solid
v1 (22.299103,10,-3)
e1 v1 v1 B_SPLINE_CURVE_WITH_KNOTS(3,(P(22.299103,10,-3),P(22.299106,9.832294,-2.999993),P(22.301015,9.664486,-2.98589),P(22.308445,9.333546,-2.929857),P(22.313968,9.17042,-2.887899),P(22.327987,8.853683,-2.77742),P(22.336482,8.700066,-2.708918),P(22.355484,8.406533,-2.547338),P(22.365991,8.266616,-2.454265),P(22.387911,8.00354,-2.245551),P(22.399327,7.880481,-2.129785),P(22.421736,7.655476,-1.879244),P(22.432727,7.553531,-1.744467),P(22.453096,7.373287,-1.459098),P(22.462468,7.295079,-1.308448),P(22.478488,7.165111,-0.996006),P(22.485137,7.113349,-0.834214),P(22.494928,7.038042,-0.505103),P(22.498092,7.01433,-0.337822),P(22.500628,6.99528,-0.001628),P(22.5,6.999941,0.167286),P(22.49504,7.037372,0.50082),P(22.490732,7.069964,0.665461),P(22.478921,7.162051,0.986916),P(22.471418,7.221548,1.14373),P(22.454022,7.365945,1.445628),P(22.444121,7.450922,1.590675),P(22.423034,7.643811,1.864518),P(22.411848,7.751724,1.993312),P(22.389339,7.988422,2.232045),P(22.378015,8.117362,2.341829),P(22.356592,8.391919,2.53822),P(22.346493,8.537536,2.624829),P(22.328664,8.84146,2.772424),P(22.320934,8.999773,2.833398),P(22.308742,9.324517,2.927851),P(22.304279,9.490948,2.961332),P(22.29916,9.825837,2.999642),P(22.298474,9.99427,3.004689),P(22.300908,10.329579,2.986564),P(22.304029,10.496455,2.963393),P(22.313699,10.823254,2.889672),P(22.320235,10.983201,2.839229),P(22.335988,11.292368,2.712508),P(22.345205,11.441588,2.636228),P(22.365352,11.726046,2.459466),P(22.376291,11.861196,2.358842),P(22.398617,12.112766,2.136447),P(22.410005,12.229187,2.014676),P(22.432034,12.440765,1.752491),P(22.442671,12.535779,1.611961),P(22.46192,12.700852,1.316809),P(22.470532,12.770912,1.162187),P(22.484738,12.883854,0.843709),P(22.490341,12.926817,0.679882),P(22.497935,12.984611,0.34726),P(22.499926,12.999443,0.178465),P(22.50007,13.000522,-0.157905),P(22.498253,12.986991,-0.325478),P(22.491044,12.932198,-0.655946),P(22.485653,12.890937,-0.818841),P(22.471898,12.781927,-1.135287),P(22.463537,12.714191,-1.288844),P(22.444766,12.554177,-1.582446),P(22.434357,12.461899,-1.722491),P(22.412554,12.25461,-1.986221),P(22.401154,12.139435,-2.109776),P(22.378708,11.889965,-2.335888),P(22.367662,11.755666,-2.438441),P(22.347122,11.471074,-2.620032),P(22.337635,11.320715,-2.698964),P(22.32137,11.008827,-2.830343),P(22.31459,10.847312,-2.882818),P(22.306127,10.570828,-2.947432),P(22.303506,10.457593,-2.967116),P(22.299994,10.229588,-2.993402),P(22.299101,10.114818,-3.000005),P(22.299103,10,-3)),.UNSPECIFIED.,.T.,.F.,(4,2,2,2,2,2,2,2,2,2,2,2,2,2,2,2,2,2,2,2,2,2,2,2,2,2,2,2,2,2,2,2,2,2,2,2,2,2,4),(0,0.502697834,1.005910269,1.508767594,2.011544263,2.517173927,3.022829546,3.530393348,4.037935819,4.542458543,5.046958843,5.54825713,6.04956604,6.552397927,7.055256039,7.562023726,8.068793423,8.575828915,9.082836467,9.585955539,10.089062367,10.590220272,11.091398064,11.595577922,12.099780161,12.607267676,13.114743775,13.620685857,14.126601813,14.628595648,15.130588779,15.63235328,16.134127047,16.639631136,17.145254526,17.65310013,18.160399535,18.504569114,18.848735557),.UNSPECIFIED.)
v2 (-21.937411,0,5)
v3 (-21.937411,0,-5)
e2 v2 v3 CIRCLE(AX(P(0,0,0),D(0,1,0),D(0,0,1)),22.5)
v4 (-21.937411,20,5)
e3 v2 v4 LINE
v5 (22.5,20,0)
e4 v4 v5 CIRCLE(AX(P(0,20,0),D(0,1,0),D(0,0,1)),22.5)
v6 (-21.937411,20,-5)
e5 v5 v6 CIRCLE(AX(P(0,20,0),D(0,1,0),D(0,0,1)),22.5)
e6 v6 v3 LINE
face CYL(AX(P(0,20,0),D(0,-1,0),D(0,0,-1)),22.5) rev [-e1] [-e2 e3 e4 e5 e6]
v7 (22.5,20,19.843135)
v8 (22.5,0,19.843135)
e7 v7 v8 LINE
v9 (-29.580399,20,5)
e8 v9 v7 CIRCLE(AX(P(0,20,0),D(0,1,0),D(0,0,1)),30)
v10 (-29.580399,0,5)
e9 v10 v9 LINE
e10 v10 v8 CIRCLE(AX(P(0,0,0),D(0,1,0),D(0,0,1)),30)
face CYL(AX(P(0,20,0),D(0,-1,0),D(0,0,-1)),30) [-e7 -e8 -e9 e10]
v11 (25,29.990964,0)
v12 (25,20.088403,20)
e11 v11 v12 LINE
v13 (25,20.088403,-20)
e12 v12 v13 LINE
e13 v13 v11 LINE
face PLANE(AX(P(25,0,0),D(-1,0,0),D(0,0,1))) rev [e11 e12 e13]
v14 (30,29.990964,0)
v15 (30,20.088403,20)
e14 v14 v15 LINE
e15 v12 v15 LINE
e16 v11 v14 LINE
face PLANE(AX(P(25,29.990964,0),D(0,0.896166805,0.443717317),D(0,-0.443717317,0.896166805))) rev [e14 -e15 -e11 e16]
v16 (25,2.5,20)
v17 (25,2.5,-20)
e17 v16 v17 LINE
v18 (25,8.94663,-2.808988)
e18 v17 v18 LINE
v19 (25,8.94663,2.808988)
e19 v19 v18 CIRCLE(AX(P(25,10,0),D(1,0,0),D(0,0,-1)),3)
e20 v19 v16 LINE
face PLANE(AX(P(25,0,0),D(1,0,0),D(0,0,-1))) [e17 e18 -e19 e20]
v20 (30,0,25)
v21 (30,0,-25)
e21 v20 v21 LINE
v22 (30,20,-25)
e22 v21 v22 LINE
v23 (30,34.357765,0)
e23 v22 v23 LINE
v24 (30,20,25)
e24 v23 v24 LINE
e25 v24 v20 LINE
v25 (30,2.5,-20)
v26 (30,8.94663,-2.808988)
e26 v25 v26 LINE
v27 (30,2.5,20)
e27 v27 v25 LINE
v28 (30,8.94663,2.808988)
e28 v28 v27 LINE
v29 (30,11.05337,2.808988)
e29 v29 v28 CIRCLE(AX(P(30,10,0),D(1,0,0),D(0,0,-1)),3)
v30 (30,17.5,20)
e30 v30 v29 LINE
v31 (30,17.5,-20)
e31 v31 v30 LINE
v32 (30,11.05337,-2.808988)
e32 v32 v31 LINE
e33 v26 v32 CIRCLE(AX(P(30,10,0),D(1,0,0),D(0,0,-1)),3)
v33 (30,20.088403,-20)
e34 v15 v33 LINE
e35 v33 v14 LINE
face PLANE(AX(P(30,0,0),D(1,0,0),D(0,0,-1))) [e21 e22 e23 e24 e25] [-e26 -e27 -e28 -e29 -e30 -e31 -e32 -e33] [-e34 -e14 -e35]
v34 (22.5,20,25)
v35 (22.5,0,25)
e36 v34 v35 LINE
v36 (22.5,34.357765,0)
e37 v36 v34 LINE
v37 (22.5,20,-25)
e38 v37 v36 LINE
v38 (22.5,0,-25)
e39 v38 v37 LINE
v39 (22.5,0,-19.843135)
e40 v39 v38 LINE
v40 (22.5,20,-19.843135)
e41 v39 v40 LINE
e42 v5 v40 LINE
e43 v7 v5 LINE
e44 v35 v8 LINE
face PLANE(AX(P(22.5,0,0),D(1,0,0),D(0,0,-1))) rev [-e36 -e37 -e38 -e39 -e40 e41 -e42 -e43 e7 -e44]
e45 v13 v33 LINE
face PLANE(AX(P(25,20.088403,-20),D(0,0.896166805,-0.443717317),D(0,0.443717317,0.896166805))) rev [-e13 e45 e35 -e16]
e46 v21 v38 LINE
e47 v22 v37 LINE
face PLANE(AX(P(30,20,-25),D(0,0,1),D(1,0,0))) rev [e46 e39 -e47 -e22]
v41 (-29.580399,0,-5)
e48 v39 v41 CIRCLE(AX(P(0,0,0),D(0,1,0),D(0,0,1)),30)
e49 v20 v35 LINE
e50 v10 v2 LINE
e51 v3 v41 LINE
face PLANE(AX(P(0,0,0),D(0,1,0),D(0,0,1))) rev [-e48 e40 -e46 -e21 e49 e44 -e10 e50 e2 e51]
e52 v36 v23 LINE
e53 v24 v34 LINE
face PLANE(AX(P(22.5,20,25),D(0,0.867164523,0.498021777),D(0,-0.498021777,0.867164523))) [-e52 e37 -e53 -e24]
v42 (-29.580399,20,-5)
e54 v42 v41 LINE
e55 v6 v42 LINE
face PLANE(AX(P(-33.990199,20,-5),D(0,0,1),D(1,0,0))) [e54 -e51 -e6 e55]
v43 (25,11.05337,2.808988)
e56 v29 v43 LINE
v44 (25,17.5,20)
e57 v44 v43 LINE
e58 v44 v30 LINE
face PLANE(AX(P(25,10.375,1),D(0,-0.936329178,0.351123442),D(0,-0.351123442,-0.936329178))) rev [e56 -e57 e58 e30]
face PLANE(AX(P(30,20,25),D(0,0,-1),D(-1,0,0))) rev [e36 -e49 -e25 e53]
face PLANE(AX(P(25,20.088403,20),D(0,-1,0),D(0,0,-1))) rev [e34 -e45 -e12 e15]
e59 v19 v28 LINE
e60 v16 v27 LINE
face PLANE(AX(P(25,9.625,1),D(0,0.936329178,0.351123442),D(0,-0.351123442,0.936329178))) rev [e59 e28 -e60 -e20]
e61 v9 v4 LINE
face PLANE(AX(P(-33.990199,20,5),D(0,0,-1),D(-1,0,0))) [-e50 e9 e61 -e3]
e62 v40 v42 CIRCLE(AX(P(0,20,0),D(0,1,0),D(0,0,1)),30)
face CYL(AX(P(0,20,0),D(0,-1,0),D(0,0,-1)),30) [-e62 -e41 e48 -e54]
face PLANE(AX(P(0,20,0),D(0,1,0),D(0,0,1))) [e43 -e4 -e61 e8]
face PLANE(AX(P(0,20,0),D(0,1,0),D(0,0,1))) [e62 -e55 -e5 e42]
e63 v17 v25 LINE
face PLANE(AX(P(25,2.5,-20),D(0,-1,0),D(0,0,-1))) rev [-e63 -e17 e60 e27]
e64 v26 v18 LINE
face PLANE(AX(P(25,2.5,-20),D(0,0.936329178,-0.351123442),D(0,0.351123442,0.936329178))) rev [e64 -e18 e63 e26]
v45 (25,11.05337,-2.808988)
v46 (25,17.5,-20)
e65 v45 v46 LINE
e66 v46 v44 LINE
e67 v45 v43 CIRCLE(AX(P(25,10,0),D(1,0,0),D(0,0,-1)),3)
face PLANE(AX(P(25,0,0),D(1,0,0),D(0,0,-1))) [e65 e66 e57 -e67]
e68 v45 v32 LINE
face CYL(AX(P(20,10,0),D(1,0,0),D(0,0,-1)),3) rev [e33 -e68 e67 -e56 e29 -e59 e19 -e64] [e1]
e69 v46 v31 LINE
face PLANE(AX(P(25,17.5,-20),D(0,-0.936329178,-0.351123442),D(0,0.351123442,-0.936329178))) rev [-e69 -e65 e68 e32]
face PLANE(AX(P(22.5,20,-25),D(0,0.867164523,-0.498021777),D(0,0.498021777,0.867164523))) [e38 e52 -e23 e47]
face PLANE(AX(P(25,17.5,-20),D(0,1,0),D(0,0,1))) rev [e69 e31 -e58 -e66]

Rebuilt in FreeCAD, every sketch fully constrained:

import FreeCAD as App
import Part
import Sketcher


def add_polygon(sketch, points):
    """Adds a closed chain of lines whose ends are joined by coincident constraints."""
    first, n = sketch.GeometryCount, len(points)
    for a, b in zip(points, points[1:] + points[:1]):
        sketch.addGeometry(Part.LineSegment(App.Vector(*a, 0), App.Vector(*b, 0)), False)
    for i in range(n):
        sketch.addConstraint(Sketcher.Constraint("Coincident", first + i, 2, first + (i + 1) % n, 1))

doc = App.newDocument("Part")
params = doc.addObject("Spreadsheet::Sheet", "Params")
for row, (alias, value) in enumerate([
    ("sketch1_diameter", "60 mm"),
    ("sketch1_diameter2", "45 mm"),
    ("pad1_length", "20 mm"),
    ("sketch2_width", "20 mm"),
    ("sketch2_height", "50 mm"),
    ("pad2_length", "7.5 mm"),
    ("sketch3_height", "10 mm"),
    ("pocket1_length", "20 mm"),
    ("sketch4_height", "40 mm"),
    ("sketch4_width", "0.75 mm"),
    ("pocket2_length", "5 mm"),
    ("sketch5_diameter", "6 mm"),
    ("pocket3_length", "10 mm"),
    ("sketch6_height", "50 mm"),
    ("pad3_length", "7.5 mm"),
    ("sketch7_height", "40 mm"),
    ("pocket4_length", "5 mm"),
], start=1):
    params.set(f"A{row}", alias)
    params.set(f"B{row}", "=" + value)
    params.setAlias(f"B{row}", alias)

body = doc.addObject("PartDesign::Body", "Body")

sketch1 = doc.addObject("Sketcher::SketchObject", "Sketch")
body.addObject(sketch1)
sketch1.AttachmentSupport = (doc.XZ_Plane, [""])
sketch1.MapMode = "FlatFace"
sketch1.addGeometry([
    Part.Circle(App.Vector(0, 0, 0), App.Vector(0, 0, 1), 30),
    Part.Circle(App.Vector(0, 0, 0), App.Vector(0, 0, 1), 22),
], False)
sketch1.addConstraint([
    Sketcher.Constraint("Coincident", 0, 3, -1, 1),
    Sketcher.Constraint("Coincident", 1, 3, -1, 1),
    Sketcher.Constraint("Diameter", 0, 60.0),
    Sketcher.Constraint("Diameter", 1, 45.0),
])
sketch1.setExpression("Constraints[2]", "Params.sketch1_diameter")
sketch1.setExpression("Constraints[3]", "Params.sketch1_diameter2")
pad1 = doc.addObject("PartDesign::Pad", "Pad")
body.addObject(pad1)
pad1.Profile = sketch1
pad1.setExpression("Length", "Params.pad1_length")
pad1.Reversed = True

sketch2 = doc.addObject("Sketcher::SketchObject", "Sketch001")
body.addObject(sketch2)
sketch2.AttachmentSupport = (doc.YZ_Plane, [""])
sketch2.MapMode = "FlatFace"
sketch2.AttachmentOffset = App.Placement(App.Vector(0, 0, 22.5), App.Rotation())
add_polygon(sketch2, [(20, 25), (0, 25), (0, -25), (20, -25)])
sketch2.addConstraint([
    Sketcher.Constraint("Horizontal", 0),
    Sketcher.Constraint("Vertical", 1),
    Sketcher.Constraint("Horizontal", 2),
    Sketcher.Constraint("Vertical", 3),
    Sketcher.Constraint("Symmetric", 0, 2, 1, 2, -1, 1),
    Sketcher.Constraint("DistanceX", 0, 2, 0, 1, 20.0),
    Sketcher.Constraint("DistanceY", 1, 2, 1, 1, 50.0),
])
sketch2.setExpression("Constraints[9]", "Params.sketch2_width")
sketch2.setExpression("Constraints[10]", "Params.sketch2_height")
pad2 = doc.addObject("PartDesign::Pad", "Pad001")
body.addObject(pad2)
pad2.Profile = sketch2
pad2.setExpression("Length", "Params.pad2_length")

sketch3 = doc.addObject("Sketcher::SketchObject", "Sketch002")
body.addObject(sketch3)
sketch3.AttachmentSupport = (doc.XZ_Plane, [""])
sketch3.MapMode = "FlatFace"
add_polygon(sketch3, [(-34, -5), (-34, 5), (-20, 5), (-20, -5)])
sketch3.addConstraint([
    Sketcher.Constraint("Vertical", 0),
    Sketcher.Constraint("Horizontal", 1),
    Sketcher.Constraint("Vertical", 2),
    Sketcher.Constraint("Horizontal", 3),
    Sketcher.Constraint("DistanceY", 0, 1, 0, 2, 10.0),
    Sketcher.Constraint("DistanceY", -1, 1, 0, 2, 5.0),
    Sketcher.Constraint("DistanceX", 0, 2, -1, 1, 33.990199),
    Sketcher.Constraint("DistanceX", 1, 1, 1, 2, 14.398607),
])
sketch3.setExpression("Constraints[8]", "Params.sketch3_height")
pocket1 = doc.addObject("PartDesign::Pocket", "Pocket")
body.addObject(pocket1)
pocket1.Profile = sketch3
pocket1.setExpression("Length", "Params.pocket1_length")

sketch4 = doc.addObject("Sketcher::SketchObject", "Sketch003")
body.addObject(sketch4)
sketch4.AttachmentSupport = (doc.YZ_Plane, [""])
sketch4.MapMode = "FlatFace"
sketch4.AttachmentOffset = App.Placement(App.Vector(0, 0, 30), App.Rotation())
add_polygon(sketch4, [(9.6, 1), (2.5, 20), (2.5, -20), (9.6, -1), (10.4, -1), (17.5, -20), (17.5, 20), (10.4, 1)])
sketch4.addConstraint([
    Sketcher.Constraint("Vertical", 1),
    Sketcher.Constraint("Horizontal", 3),
    Sketcher.Constraint("Vertical", 5),
    Sketcher.Constraint("Horizontal", 7),
    Sketcher.Constraint("Symmetric", 3, 2, 6, 2, -1),
    Sketcher.Constraint("Parallel", 0, 4),
    Sketcher.Constraint("Parallel", 2, 6),
    Sketcher.Constraint("Horizontal", 1, 2, 4, 2),
    Sketcher.Constraint("Horizontal", 0, 2, 5, 2),
    Sketcher.Constraint("Vertical", 2, 2, 7, 2),
    Sketcher.Constraint("DistanceY", 1, 2, 1, 1, 40.0),
    Sketcher.Constraint("DistanceY", 2, 2, -1, 1, 1.0),
    Sketcher.Constraint("DistanceX", 1, 2, 4, 2, 15.0),
    Sketcher.Constraint("DistanceX", 3, 1, 3, 2, 0.75),
    Sketcher.Constraint("DistanceX", -1, 1, 0, 2, 2.5),
])
sketch4.setExpression("Constraints[18]", "Params.sketch4_height")
sketch4.setExpression("Constraints[21]", "Params.sketch4_width")
pocket2 = doc.addObject("PartDesign::Pocket", "Pocket001")
body.addObject(pocket2)
pocket2.Profile = sketch4
pocket2.setExpression("Length", "Params.pocket2_length")

sketch5 = doc.addObject("Sketcher::SketchObject", "Sketch004")
body.addObject(sketch5)
sketch5.AttachmentSupport = (doc.YZ_Plane, [""])
sketch5.MapMode = "FlatFace"
sketch5.AttachmentOffset = App.Placement(App.Vector(0, 0, 30), App.Rotation())
sketch5.addGeometry(Part.Circle(App.Vector(10, 0, 0), App.Vector(0, 0, 1), 3), False)
sketch5.addConstraint([
    Sketcher.Constraint("PointOnObject", 0, 3, -1),
    Sketcher.Constraint("Diameter", 0, 6.0),
    Sketcher.Constraint("DistanceX", -1, 1, 0, 3, 10.0),
])
sketch5.setExpression("Constraints[1]", "Params.sketch5_diameter")
pocket3 = doc.addObject("PartDesign::Pocket", "Pocket002")
body.addObject(pocket3)
pocket3.Profile = sketch5
pocket3.setExpression("Length", "Params.pocket3_length")

sketch6 = doc.addObject("Sketcher::SketchObject", "Sketch005")
body.addObject(sketch6)
sketch6.AttachmentSupport = (doc.YZ_Plane, [""])
sketch6.MapMode = "FlatFace"
sketch6.AttachmentOffset = App.Placement(App.Vector(0, 0, 30), App.Rotation())
add_polygon(sketch6, [(34, 0), (20, 25), (20, -25)])
sketch6.addConstraint([
    Sketcher.Constraint("Vertical", 1),
    Sketcher.Constraint("PointOnObject", 2, 2, -1),
    Sketcher.Constraint("Equal", 0, 2),
    Sketcher.Constraint("DistanceY", 1, 2, 1, 1, 50.0),
    Sketcher.Constraint("DistanceX", -1, 1, 0, 2, 20.0),
    Sketcher.Constraint("Distance", 0, 28.829593),
])
sketch6.setExpression("Constraints[6]", "Params.sketch6_height")
pad3 = doc.addObject("PartDesign::Pad", "Pad002")
body.addObject(pad3)
pad3.Profile = sketch6
pad3.setExpression("Length", "Params.pad3_length")
pad3.Reversed = True

sketch7 = doc.addObject("Sketcher::SketchObject", "Sketch006")
body.addObject(sketch7)
sketch7.AttachmentSupport = (doc.YZ_Plane, [""])
sketch7.MapMode = "FlatFace"
sketch7.AttachmentOffset = App.Placement(App.Vector(0, 0, 30), App.Rotation())
add_polygon(sketch7, [(20, 20), (20, -20), (30, 0)])
sketch7.addConstraint([
    Sketcher.Constraint("Vertical", 0),
    Sketcher.Constraint("PointOnObject", 1, 2, -1),
    Sketcher.Constraint("Equal", 1, 2),
    Sketcher.Constraint("DistanceY", 0, 2, 0, 1, 40.0),
    Sketcher.Constraint("DistanceX", 0, 2, 1, 2, 9.902561),
    Sketcher.Constraint("DistanceX", -1, 1, 0, 2, 20.088403),
])
sketch7.setExpression("Constraints[6]", "Params.sketch7_height")
pocket4 = doc.addObject("PartDesign::Pocket", "Pocket003")
body.addObject(pocket4)
pocket4.Profile = sketch7
pocket4.setExpression("Length", "Params.pocket4_length")

doc.recompute()
